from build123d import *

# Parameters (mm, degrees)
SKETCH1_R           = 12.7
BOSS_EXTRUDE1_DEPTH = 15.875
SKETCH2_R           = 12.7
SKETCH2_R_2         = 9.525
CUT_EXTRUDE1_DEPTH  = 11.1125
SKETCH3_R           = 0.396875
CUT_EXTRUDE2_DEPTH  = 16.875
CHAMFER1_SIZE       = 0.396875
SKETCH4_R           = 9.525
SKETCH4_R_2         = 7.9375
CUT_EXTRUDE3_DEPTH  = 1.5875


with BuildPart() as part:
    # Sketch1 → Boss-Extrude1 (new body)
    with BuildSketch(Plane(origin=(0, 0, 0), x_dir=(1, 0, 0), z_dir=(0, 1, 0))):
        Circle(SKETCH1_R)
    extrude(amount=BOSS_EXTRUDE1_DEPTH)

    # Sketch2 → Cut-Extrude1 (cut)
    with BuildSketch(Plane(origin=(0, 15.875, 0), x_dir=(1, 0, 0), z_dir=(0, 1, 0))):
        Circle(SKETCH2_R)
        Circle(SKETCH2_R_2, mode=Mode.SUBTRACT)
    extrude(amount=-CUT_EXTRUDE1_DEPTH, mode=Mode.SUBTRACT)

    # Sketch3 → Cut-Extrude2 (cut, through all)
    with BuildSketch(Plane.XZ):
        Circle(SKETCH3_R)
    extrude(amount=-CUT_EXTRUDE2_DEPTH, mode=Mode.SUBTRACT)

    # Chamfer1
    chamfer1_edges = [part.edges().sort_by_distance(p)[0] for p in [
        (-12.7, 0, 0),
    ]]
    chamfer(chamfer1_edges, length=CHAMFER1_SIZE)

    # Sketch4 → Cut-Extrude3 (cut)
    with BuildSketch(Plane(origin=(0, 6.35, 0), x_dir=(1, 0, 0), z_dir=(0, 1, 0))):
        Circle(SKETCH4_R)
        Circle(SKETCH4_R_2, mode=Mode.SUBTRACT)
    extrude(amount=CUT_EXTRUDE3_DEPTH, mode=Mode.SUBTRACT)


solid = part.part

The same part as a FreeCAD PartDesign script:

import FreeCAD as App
import Part
import Sketcher
Q = App.Units.Quantity


def edges_at(feature, points):
    """Names of the edges that pass closest to the given points."""
    edges = feature.Shape.Edges
    near = lambda p: min(range(len(edges)), key=lambda i: edges[i].distToShape(Part.Vertex(*p))[0])
    return sorted({f"Edge{near(p) + 1}" for p in points})

doc = App.newDocument("Part")
body = doc.addObject("PartDesign::Body", "Body")

sketch1 = doc.addObject("Sketcher::SketchObject", "Sketch")
body.addObject(sketch1)
sketch1.AttachmentSupport = (doc.XZ_Plane, [""])
sketch1.MapMode = "FlatFace"
sketch1.addGeometry(Part.Circle(App.Vector(0, 0, 0), App.Vector(0, 0, 1), 13), False)
sketch1.addConstraint([
    Sketcher.Constraint("Coincident", 0, 3, -1, 1),
    Sketcher.Constraint("Diameter", 0, Q("1 in")),
])
pad1 = doc.addObject("PartDesign::Pad", "Pad")
body.addObject(pad1)
pad1.Profile = sketch1
pad1.Length = Q("0.625 in")
pad1.Reversed = True

sketch2 = doc.addObject("Sketcher::SketchObject", "Sketch001")
body.addObject(sketch2)
sketch2.AttachmentSupport = (doc.XZ_Plane, [""])
sketch2.MapMode = "FlatFace"
sketch2.AttachmentOffset = App.Placement(App.Vector(0, 0, -0.625 * 25.4), App.Rotation())
sketch2.addGeometry([
    Part.Circle(App.Vector(0, 0, 0), App.Vector(0, 0, 1), 13),
    Part.Circle(App.Vector(0, 0, 0), App.Vector(0, 0, 1), 10),
], False)
sketch2.addConstraint([
    Sketcher.Constraint("Coincident", 0, 3, -1, 1),
    Sketcher.Constraint("Coincident", 1, 3, -1, 1),
    Sketcher.Constraint("Diameter", 0, Q("1 in")),
    Sketcher.Constraint("Diameter", 1, Q("0.75 in")),
])
pocket1 = doc.addObject("PartDesign::Pocket", "Pocket")
body.addObject(pocket1)
pocket1.Profile = sketch2
pocket1.Length = Q("0.4375 in")
pocket1.Reversed = True

sketch3 = doc.addObject("Sketcher::SketchObject", "Sketch002")
body.addObject(sketch3)
sketch3.AttachmentSupport = (doc.XZ_Plane, [""])
sketch3.MapMode = "FlatFace"
sketch3.addGeometry(Part.Circle(App.Vector(0, 0, 0), App.Vector(0, 0, 1), 0.4), False)
sketch3.addConstraint([
    Sketcher.Constraint("Coincident", 0, 3, -1, 1),
    Sketcher.Constraint("Diameter", 0, Q("0.03125 in")),
])
pocket2 = doc.addObject("PartDesign::Pocket", "Pocket001")
body.addObject(pocket2)
pocket2.Profile = sketch3
pocket2.Type = "ThroughAll"
doc.recompute()

chamfer = doc.addObject("PartDesign::Chamfer", "Chamfer")
body.addObject(chamfer)
chamfer.Base = (pocket2, edges_at(pocket2, [(-12.7, 0, 0)]))
chamfer.Size = Q("0.015625 in")

sketch4 = doc.addObject("Sketcher::SketchObject", "Sketch003")
body.addObject(sketch4)
sketch4.AttachmentSupport = (doc.XZ_Plane, [""])
sketch4.MapMode = "FlatFace"
sketch4.AttachmentOffset = App.Placement(App.Vector(0, 0, -0.25 * 25.4), App.Rotation())
sketch4.addGeometry([
    Part.Circle(App.Vector(0, 0, 0), App.Vector(0, 0, 1), 10),
    Part.Circle(App.Vector(0, 0, 0), App.Vector(0, 0, 1), 8),
], False)
sketch4.addConstraint([
    Sketcher.Constraint("Coincident", 0, 3, -1, 1),
    Sketcher.Constraint("Coincident", 1, 3, -1, 1),
    Sketcher.Constraint("Diameter", 0, Q("0.75 in")),
    Sketcher.Constraint("Diameter", 1, Q("0.625 in")),
])
pocket3 = doc.addObject("PartDesign::Pocket", "Pocket002")
body.addObject(pocket3)
pocket3.Profile = sketch4
pocket3.Length = Q("0.0625 in")

doc.recompute()
